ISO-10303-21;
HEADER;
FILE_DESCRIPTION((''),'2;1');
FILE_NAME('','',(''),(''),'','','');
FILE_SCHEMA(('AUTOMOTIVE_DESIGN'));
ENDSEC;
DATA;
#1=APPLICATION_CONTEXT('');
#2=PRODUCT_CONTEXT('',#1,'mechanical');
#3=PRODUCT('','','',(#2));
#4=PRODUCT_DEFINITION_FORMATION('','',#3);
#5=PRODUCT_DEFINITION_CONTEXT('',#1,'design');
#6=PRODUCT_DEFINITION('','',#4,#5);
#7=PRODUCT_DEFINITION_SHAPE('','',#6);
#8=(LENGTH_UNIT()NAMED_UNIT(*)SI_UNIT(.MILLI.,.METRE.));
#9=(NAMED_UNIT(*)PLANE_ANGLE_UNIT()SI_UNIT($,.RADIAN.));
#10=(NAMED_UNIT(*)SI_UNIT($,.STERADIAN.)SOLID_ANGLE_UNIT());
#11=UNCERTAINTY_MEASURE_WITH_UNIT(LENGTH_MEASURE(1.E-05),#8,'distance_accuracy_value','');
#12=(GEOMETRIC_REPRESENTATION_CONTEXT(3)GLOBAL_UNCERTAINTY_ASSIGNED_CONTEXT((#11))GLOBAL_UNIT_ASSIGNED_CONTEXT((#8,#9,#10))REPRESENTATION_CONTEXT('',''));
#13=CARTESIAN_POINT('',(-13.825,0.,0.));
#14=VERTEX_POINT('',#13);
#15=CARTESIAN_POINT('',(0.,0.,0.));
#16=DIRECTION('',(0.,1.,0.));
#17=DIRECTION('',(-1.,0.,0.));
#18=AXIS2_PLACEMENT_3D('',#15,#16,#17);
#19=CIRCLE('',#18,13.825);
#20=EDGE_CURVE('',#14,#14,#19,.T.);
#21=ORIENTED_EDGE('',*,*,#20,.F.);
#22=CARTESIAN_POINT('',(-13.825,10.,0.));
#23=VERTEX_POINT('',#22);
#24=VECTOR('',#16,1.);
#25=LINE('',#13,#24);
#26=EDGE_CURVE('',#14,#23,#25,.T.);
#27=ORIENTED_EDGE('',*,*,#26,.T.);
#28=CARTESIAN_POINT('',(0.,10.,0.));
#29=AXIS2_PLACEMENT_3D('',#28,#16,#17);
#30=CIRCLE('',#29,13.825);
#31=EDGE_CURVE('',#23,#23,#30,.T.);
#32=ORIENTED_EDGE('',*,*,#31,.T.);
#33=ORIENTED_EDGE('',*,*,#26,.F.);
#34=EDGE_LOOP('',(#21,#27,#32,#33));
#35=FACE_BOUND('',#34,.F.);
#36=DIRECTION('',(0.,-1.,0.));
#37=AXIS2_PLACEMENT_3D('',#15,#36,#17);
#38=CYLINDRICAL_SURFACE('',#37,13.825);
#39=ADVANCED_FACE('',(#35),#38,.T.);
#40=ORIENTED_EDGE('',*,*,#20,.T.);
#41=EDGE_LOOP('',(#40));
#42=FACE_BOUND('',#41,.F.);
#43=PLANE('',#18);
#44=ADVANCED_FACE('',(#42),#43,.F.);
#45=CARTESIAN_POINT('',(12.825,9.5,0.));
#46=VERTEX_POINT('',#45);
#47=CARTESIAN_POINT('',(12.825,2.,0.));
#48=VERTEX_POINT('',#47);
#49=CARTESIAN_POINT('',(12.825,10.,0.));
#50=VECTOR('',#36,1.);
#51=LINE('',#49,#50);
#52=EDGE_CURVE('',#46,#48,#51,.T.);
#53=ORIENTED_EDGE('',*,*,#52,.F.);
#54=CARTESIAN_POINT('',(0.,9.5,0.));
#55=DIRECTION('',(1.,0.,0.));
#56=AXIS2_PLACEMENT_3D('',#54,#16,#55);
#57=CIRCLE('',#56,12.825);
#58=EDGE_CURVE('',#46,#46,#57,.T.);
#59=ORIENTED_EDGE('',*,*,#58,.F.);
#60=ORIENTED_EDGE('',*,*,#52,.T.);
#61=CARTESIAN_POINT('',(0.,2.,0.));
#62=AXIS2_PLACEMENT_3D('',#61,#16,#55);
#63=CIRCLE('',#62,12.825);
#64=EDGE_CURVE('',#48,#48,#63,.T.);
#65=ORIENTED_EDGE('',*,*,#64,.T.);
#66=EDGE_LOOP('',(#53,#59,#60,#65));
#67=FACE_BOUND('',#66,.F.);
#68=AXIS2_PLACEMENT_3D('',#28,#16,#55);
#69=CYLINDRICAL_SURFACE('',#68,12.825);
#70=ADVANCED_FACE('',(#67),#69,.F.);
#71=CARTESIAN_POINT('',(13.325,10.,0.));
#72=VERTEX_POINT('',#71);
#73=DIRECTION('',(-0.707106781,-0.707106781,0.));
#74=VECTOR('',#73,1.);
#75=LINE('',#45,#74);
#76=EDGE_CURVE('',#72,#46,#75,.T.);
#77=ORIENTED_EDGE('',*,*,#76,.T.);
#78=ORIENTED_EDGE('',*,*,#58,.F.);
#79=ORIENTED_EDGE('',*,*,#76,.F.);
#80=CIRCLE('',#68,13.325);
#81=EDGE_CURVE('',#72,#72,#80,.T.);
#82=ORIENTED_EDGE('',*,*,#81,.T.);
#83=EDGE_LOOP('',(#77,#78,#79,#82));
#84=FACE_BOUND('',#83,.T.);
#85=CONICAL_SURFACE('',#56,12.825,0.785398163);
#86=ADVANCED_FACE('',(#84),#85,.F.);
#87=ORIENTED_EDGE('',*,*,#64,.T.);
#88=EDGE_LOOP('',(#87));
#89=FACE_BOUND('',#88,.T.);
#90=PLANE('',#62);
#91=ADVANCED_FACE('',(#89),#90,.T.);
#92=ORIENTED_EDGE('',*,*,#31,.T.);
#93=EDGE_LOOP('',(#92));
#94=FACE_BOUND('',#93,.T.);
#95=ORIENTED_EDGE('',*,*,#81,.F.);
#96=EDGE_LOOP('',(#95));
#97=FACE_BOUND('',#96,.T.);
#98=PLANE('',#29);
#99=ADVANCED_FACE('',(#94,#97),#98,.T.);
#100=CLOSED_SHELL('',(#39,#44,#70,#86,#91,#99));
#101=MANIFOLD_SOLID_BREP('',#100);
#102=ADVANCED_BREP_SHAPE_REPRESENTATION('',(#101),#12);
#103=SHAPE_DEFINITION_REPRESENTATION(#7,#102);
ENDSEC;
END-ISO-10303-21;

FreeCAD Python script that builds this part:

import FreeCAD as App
import Part
import Sketcher
from FreeCAD import Vector
Q = App.Units.Quantity


def edges_at(feature, points):
    """Names of the edges that pass closest to the given points."""
    edges = feature.Shape.Edges
    near = lambda p: min(range(len(edges)), key=lambda i: edges[i].distToShape(Part.Vertex(*p))[0])
    return sorted({f"Edge{near(p) + 1}" for p in points})

doc = App.newDocument("Part")
body = doc.addObject("PartDesign::Body", "Body")

# Sketch on XZ plane
sketch1 = body.newObject("Sketcher::SketchObject", "Sketch")
sketch1.AttachmentSupport = (doc.getObject("XZ_Plane"), [""])
sketch1.MapMode = "FlatFace"
sketch1.addGeometry(Part.Circle(Vector(0, 0, 0), Vector(0, 0, 1), 13.825), False)
sketch1.addConstraint([
    Sketcher.Constraint("Coincident", 0, 3, -1, 1),
    Sketcher.Constraint("Diameter", 0, Q("27.65 mm")),
])
pad1 = body.newObject("PartDesign::Pad", "Pad")
pad1.Profile = sketch1
pad1.Length = 10
pad1.Reversed = True

# Sketch on XZ plane
sketch2 = body.newObject("Sketcher::SketchObject", "Sketch001")
sketch2.AttachmentSupport = (doc.getObject("XZ_Plane"), [""])
sketch2.MapMode = "FlatFace"
sketch2.AttachmentOffset = App.Placement(Vector(0, 0, -10), App.Rotation())
sketch2.addGeometry(Part.Circle(Vector(0, 0, 0), Vector(0, 0, 1), 12.825), False)
sketch2.addConstraint([
    Sketcher.Constraint("Coincident", 0, 3, -1, 1),
    Sketcher.Constraint("Diameter", 0, Q("25.65 mm")),
])
pocket1 = body.newObject("PartDesign::Pocket", "Pocket")
pocket1.Profile = sketch2
pocket1.Length = 8
pocket1.Reversed = True
doc.recompute()

chamfer = body.newObject("PartDesign::Chamfer", "Chamfer")
chamfer.Base = (pocket1, edges_at(pocket1, [(-12.825, 10, 0)]))
chamfer.Size = 0.5

doc.recompute()
